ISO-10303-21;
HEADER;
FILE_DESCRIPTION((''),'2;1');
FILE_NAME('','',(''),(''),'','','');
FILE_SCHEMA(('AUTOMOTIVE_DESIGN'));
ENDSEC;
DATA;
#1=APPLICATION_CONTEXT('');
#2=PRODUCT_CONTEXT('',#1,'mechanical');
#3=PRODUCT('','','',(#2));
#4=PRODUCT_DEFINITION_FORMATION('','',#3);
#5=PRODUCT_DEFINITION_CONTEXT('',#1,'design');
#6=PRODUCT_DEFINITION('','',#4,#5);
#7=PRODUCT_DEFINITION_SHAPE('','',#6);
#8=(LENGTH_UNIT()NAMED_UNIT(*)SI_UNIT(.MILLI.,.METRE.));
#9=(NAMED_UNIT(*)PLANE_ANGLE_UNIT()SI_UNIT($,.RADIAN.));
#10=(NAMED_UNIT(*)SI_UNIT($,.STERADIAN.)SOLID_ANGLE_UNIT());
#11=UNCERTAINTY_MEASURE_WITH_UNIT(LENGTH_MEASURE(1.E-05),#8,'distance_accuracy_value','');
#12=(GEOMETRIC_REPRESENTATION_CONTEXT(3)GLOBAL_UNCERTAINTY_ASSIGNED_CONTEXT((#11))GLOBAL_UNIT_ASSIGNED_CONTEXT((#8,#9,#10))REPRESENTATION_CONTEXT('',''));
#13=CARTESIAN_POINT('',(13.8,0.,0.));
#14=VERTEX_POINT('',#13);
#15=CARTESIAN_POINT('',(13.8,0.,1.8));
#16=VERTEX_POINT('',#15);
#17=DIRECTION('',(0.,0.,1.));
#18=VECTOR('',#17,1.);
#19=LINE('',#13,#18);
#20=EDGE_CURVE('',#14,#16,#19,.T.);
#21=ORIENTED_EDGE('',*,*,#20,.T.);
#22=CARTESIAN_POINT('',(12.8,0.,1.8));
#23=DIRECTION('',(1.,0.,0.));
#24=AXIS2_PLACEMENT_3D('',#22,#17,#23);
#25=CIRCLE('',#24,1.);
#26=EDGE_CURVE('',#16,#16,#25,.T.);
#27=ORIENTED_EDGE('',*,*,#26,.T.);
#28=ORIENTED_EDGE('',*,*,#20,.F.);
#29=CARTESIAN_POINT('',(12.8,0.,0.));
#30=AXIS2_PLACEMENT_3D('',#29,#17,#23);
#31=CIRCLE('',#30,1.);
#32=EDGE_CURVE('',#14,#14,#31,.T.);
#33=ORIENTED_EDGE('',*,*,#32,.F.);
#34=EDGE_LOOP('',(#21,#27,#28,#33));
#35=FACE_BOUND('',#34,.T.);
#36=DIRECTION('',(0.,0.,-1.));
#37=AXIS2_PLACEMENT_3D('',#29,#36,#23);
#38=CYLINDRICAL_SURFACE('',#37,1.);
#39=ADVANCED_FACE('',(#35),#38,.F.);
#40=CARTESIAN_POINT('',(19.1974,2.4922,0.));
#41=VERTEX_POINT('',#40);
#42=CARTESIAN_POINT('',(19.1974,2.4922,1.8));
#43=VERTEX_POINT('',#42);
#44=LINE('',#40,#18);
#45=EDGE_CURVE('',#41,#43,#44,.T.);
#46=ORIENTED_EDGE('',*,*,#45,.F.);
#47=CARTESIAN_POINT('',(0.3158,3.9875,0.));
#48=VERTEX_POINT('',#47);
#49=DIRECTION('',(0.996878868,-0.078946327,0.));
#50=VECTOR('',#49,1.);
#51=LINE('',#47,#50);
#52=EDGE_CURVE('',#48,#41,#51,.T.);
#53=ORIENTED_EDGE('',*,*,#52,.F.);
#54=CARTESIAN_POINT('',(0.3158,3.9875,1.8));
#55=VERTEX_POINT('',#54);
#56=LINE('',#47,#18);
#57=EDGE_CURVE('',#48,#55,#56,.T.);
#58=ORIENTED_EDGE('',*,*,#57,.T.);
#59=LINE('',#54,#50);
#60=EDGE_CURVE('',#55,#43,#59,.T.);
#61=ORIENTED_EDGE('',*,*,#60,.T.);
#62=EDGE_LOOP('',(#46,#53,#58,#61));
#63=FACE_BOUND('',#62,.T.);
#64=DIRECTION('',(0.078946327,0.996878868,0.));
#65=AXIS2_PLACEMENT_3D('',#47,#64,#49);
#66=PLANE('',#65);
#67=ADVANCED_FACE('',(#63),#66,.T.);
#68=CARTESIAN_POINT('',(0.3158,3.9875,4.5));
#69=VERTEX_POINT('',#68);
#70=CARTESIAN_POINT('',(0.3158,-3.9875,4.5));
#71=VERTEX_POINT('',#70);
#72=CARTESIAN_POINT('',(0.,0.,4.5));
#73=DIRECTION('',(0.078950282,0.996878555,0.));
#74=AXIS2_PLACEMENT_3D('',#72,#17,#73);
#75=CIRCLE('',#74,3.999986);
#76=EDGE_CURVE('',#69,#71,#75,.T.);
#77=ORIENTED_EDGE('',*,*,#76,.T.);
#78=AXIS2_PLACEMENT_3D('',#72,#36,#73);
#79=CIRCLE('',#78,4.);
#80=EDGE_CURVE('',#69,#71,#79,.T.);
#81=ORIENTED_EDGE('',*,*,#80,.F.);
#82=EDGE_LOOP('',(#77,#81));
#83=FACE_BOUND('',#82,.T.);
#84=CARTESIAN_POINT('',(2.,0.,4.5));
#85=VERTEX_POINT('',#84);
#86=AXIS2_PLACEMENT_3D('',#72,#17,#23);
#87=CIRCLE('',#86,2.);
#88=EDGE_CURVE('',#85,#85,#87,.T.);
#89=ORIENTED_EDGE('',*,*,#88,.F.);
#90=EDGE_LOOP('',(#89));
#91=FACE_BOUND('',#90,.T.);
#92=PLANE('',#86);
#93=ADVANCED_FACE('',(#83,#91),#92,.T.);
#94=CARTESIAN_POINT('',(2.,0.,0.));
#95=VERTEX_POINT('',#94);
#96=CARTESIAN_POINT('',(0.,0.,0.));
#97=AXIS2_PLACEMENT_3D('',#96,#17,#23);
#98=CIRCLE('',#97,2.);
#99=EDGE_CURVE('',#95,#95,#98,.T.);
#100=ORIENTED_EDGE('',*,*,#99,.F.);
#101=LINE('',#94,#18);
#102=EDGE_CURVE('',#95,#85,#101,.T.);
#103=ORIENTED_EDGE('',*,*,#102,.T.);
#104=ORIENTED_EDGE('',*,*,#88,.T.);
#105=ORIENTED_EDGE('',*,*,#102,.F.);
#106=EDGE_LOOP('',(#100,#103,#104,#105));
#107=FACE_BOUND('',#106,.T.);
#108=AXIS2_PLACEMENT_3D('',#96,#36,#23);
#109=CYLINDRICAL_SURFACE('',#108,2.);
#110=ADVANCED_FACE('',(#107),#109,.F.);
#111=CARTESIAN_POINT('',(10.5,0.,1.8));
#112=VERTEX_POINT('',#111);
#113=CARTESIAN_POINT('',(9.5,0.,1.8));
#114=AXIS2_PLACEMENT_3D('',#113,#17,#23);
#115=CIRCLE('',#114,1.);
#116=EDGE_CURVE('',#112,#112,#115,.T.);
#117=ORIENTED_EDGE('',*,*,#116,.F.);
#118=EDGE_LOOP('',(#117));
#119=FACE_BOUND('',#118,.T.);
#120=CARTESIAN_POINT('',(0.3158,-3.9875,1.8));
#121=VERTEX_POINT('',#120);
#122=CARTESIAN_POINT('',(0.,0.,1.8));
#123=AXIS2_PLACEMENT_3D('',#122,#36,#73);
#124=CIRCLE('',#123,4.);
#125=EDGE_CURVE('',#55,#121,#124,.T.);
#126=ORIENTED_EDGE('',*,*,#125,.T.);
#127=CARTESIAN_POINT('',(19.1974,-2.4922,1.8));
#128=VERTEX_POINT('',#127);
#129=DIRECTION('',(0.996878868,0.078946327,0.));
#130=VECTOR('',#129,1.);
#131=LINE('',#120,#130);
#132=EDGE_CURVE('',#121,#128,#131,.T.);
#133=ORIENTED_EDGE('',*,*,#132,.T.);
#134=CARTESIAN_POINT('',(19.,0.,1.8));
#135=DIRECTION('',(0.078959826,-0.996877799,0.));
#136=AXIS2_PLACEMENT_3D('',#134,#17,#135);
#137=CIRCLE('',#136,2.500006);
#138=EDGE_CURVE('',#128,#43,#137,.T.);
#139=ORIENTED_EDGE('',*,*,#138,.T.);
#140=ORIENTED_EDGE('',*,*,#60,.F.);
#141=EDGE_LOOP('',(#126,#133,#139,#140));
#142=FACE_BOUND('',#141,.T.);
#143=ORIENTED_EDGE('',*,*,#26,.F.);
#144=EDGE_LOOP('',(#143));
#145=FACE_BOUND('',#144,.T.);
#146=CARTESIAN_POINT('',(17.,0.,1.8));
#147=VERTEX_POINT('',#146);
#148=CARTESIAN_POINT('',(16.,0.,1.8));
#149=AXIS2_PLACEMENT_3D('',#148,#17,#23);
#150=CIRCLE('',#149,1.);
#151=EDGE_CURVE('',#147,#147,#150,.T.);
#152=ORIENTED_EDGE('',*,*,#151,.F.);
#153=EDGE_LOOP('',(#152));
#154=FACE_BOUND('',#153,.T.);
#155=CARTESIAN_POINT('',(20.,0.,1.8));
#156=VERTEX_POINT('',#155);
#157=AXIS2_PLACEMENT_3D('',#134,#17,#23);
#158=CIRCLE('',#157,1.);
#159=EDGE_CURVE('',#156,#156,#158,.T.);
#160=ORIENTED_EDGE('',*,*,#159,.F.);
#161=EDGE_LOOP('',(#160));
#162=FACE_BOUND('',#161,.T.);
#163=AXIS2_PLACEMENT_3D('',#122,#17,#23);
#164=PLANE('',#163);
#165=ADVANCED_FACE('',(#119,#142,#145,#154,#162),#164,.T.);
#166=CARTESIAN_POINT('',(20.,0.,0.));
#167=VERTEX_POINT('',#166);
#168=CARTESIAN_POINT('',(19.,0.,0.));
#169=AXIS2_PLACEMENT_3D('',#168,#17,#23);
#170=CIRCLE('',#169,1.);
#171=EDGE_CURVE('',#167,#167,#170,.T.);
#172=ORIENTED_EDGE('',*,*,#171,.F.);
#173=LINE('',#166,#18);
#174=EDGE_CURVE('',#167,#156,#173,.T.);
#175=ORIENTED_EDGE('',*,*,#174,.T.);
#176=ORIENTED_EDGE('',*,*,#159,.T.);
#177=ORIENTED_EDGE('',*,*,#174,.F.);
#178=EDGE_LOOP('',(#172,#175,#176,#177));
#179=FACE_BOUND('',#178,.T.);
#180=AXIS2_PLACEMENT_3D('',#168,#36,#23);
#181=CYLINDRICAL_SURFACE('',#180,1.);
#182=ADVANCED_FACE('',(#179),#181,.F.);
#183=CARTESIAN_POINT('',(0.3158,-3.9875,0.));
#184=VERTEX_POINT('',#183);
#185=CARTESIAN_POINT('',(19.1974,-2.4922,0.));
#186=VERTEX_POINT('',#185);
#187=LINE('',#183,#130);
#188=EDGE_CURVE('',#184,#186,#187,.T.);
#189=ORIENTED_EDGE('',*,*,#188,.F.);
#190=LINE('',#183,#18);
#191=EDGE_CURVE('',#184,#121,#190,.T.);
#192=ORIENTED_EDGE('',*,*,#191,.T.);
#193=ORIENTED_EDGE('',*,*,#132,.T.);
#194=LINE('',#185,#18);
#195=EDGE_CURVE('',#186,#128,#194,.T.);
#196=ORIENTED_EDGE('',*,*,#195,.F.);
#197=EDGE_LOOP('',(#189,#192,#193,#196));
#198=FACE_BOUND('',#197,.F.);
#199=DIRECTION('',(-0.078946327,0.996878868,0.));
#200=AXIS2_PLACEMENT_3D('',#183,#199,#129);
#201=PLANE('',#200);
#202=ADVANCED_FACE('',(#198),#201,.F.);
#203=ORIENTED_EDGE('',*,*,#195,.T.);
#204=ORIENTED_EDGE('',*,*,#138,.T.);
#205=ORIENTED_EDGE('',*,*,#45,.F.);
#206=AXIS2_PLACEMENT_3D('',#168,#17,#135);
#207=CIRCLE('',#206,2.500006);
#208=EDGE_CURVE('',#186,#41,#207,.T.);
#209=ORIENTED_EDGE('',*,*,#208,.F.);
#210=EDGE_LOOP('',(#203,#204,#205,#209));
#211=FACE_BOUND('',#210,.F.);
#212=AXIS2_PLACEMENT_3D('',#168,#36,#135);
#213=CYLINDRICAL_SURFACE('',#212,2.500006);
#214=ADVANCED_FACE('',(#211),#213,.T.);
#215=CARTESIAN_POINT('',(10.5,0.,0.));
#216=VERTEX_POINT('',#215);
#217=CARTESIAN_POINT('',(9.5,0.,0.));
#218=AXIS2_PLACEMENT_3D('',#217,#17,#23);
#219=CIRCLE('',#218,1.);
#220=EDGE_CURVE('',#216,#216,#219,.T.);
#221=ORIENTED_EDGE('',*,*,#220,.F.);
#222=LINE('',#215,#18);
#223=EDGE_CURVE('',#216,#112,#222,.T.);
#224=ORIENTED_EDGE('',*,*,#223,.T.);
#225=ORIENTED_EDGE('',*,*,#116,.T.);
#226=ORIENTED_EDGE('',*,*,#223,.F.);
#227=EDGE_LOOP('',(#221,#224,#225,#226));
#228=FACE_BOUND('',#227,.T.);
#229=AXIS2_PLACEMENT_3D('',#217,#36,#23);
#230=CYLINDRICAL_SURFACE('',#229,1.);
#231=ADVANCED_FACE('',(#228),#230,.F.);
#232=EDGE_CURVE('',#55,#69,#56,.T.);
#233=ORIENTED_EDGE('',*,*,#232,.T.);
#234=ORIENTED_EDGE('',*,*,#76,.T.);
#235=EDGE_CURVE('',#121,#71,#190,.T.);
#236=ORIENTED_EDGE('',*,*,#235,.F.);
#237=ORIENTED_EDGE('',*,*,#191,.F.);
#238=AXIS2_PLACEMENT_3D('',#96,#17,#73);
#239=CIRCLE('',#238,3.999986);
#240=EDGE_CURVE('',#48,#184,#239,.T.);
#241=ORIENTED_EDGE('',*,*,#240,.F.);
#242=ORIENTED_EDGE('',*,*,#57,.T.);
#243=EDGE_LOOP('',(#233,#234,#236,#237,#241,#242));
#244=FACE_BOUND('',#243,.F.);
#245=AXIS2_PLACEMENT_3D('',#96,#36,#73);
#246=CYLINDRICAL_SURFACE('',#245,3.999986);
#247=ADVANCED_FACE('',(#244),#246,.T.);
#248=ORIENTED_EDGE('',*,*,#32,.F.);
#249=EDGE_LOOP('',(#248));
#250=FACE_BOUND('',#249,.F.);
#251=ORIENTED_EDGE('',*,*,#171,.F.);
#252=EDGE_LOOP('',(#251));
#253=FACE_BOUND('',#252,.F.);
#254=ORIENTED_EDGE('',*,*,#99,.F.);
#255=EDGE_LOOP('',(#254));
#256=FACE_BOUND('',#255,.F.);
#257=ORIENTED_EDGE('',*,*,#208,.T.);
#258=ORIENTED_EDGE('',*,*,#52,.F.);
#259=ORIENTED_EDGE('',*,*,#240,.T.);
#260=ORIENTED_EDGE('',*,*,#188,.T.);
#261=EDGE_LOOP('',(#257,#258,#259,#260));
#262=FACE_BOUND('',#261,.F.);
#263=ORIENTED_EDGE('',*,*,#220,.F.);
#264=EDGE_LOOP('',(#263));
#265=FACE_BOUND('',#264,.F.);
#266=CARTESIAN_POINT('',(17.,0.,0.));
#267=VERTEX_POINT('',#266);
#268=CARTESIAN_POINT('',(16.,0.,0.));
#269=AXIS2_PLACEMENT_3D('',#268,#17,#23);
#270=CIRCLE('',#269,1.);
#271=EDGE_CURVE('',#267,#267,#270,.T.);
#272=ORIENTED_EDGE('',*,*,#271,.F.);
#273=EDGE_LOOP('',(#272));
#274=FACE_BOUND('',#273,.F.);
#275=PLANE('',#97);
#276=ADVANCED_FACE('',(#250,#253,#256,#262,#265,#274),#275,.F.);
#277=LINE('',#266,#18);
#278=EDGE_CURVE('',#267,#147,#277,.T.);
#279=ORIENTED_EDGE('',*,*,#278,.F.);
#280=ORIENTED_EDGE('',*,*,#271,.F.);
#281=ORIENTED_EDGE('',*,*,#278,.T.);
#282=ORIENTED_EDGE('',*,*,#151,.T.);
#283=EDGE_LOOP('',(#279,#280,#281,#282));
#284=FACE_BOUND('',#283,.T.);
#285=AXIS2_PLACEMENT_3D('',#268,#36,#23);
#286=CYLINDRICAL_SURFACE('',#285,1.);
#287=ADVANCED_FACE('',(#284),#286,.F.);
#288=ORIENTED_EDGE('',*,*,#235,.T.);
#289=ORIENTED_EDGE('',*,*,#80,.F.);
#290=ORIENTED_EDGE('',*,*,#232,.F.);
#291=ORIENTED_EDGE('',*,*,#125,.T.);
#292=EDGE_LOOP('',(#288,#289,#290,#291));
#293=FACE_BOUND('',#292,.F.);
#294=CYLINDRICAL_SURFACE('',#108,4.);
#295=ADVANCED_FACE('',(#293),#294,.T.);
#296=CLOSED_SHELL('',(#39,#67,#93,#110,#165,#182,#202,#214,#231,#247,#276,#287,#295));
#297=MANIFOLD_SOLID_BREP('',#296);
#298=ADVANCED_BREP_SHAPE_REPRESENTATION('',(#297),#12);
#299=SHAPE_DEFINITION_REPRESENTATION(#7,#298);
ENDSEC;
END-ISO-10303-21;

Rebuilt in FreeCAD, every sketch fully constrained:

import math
import FreeCAD as App
import Part
import Sketcher

V = App.Vector

doc = App.newDocument("Part")
body = doc.addObject("PartDesign::Body", "Body")

# Sketch on XY plane
sketch1 = doc.addObject("Sketcher::SketchObject", "Sketch")
body.addObject(sketch1)
sketch1.AttachmentSupport = (doc.XY_Plane, [""])
sketch1.MapMode = "FlatFace"
sketch1.addGeometry([
    Part.LineSegment(V(0.3158, -3.9875, 0), V(19.1974, -2.4922, 0)),  # 0
    Part.ArcOfCircle(Part.Circle(V(19, 0, 0), V(0, 0, 1), 2.500006), math.radians(-85.471221), math.radians(85.471221)),  # 1
    Part.LineSegment(V(19.1974, 2.4922, 0), V(0.3158, 3.9875, 0)),  # 2
    Part.ArcOfCircle(Part.Circle(V(0, 0, 0), V(0, 0, 1), 3.999986), math.radians(85.47177), math.radians(274.52823)),  # 3
    Part.Circle(V(9.5, 0, 0), V(0, 0, 1), 1),  # 4
    Part.Circle(V(12.8, 0, 0), V(0, 0, 1), 1),  # 5
    Part.Circle(V(16, 0, 0), V(0, 0, 1), 1),  # 6
    Part.Circle(V(19, 0, 0), V(0, 0, 1), 1),  # 7
    Part.Circle(V(0, 0, 0), V(0, 0, 1), 2),  # 8
], False)
sketch1.addConstraint([
    Sketcher.Constraint("Tangent", 0, 2, 1, 1),
    Sketcher.Constraint("Tangent", 1, 2, 2, 1),
    Sketcher.Constraint("Tangent", 2, 2, 3, 1),
    Sketcher.Constraint("Tangent", 3, 2, 0, 1),
    Sketcher.Constraint("Coincident", 3, 3, -1, 1),
    Sketcher.Constraint("Coincident", 8, 3, -1, 1),
    Sketcher.Constraint("Coincident", 7, 3, 1, 3),
    Sketcher.Constraint("Equal", 4, 5),
    Sketcher.Constraint("Equal", 5, 6),
    Sketcher.Constraint("Equal", 6, 7),
    Sketcher.Constraint("PointOnObject", 1, 3, -1),
    Sketcher.Constraint("PointOnObject", 4, 3, -1),
    Sketcher.Constraint("PointOnObject", 5, 3, -1),
    Sketcher.Constraint("PointOnObject", 6, 3, -1),
    Sketcher.Constraint("Diameter", 4, 2.0),
    Sketcher.Constraint("Diameter", 8, 4.0),
    Sketcher.Constraint("Radius", 3, 4.0),
    Sketcher.Constraint("Radius", 1, 2.5),
    Sketcher.Constraint("DistanceX", -1, 1, 1, 3, 19.0),
    Sketcher.Constraint("DistanceX", -1, 1, 6, 3, 16.0),
    Sketcher.Constraint("DistanceX", -1, 1, 4, 3, 9.5),
    Sketcher.Constraint("DistanceX", -1, 1, 5, 3, 12.8),
])
pad1 = doc.addObject("PartDesign::Pad", "Pad")
body.addObject(pad1)
pad1.Profile = sketch1
pad1.Length = 1.8

# Sketch on XY plane
sketch2 = doc.addObject("Sketcher::SketchObject", "Sketch001")
body.addObject(sketch2)
sketch2.AttachmentSupport = (doc.XY_Plane, [""])
sketch2.MapMode = "FlatFace"
sketch2.addGeometry([
    Part.Circle(V(0, 0, 0), V(0, 0, 1), 4),
    Part.Circle(V(0, 0, 0), V(0, 0, 1), 2),
], False)
sketch2.addConstraint([
    Sketcher.Constraint("Coincident", 0, 3, -1, 1),
    Sketcher.Constraint("Coincident", 1, 3, -1, 1),
    Sketcher.Constraint("Diameter", 0, 8.0),
    Sketcher.Constraint("Diameter", 1, 4.0),
])
pad2 = doc.addObject("PartDesign::Pad", "Pad001")
body.addObject(pad2)
pad2.Profile = sketch2
pad2.Length = 4.5

doc.recompute()
